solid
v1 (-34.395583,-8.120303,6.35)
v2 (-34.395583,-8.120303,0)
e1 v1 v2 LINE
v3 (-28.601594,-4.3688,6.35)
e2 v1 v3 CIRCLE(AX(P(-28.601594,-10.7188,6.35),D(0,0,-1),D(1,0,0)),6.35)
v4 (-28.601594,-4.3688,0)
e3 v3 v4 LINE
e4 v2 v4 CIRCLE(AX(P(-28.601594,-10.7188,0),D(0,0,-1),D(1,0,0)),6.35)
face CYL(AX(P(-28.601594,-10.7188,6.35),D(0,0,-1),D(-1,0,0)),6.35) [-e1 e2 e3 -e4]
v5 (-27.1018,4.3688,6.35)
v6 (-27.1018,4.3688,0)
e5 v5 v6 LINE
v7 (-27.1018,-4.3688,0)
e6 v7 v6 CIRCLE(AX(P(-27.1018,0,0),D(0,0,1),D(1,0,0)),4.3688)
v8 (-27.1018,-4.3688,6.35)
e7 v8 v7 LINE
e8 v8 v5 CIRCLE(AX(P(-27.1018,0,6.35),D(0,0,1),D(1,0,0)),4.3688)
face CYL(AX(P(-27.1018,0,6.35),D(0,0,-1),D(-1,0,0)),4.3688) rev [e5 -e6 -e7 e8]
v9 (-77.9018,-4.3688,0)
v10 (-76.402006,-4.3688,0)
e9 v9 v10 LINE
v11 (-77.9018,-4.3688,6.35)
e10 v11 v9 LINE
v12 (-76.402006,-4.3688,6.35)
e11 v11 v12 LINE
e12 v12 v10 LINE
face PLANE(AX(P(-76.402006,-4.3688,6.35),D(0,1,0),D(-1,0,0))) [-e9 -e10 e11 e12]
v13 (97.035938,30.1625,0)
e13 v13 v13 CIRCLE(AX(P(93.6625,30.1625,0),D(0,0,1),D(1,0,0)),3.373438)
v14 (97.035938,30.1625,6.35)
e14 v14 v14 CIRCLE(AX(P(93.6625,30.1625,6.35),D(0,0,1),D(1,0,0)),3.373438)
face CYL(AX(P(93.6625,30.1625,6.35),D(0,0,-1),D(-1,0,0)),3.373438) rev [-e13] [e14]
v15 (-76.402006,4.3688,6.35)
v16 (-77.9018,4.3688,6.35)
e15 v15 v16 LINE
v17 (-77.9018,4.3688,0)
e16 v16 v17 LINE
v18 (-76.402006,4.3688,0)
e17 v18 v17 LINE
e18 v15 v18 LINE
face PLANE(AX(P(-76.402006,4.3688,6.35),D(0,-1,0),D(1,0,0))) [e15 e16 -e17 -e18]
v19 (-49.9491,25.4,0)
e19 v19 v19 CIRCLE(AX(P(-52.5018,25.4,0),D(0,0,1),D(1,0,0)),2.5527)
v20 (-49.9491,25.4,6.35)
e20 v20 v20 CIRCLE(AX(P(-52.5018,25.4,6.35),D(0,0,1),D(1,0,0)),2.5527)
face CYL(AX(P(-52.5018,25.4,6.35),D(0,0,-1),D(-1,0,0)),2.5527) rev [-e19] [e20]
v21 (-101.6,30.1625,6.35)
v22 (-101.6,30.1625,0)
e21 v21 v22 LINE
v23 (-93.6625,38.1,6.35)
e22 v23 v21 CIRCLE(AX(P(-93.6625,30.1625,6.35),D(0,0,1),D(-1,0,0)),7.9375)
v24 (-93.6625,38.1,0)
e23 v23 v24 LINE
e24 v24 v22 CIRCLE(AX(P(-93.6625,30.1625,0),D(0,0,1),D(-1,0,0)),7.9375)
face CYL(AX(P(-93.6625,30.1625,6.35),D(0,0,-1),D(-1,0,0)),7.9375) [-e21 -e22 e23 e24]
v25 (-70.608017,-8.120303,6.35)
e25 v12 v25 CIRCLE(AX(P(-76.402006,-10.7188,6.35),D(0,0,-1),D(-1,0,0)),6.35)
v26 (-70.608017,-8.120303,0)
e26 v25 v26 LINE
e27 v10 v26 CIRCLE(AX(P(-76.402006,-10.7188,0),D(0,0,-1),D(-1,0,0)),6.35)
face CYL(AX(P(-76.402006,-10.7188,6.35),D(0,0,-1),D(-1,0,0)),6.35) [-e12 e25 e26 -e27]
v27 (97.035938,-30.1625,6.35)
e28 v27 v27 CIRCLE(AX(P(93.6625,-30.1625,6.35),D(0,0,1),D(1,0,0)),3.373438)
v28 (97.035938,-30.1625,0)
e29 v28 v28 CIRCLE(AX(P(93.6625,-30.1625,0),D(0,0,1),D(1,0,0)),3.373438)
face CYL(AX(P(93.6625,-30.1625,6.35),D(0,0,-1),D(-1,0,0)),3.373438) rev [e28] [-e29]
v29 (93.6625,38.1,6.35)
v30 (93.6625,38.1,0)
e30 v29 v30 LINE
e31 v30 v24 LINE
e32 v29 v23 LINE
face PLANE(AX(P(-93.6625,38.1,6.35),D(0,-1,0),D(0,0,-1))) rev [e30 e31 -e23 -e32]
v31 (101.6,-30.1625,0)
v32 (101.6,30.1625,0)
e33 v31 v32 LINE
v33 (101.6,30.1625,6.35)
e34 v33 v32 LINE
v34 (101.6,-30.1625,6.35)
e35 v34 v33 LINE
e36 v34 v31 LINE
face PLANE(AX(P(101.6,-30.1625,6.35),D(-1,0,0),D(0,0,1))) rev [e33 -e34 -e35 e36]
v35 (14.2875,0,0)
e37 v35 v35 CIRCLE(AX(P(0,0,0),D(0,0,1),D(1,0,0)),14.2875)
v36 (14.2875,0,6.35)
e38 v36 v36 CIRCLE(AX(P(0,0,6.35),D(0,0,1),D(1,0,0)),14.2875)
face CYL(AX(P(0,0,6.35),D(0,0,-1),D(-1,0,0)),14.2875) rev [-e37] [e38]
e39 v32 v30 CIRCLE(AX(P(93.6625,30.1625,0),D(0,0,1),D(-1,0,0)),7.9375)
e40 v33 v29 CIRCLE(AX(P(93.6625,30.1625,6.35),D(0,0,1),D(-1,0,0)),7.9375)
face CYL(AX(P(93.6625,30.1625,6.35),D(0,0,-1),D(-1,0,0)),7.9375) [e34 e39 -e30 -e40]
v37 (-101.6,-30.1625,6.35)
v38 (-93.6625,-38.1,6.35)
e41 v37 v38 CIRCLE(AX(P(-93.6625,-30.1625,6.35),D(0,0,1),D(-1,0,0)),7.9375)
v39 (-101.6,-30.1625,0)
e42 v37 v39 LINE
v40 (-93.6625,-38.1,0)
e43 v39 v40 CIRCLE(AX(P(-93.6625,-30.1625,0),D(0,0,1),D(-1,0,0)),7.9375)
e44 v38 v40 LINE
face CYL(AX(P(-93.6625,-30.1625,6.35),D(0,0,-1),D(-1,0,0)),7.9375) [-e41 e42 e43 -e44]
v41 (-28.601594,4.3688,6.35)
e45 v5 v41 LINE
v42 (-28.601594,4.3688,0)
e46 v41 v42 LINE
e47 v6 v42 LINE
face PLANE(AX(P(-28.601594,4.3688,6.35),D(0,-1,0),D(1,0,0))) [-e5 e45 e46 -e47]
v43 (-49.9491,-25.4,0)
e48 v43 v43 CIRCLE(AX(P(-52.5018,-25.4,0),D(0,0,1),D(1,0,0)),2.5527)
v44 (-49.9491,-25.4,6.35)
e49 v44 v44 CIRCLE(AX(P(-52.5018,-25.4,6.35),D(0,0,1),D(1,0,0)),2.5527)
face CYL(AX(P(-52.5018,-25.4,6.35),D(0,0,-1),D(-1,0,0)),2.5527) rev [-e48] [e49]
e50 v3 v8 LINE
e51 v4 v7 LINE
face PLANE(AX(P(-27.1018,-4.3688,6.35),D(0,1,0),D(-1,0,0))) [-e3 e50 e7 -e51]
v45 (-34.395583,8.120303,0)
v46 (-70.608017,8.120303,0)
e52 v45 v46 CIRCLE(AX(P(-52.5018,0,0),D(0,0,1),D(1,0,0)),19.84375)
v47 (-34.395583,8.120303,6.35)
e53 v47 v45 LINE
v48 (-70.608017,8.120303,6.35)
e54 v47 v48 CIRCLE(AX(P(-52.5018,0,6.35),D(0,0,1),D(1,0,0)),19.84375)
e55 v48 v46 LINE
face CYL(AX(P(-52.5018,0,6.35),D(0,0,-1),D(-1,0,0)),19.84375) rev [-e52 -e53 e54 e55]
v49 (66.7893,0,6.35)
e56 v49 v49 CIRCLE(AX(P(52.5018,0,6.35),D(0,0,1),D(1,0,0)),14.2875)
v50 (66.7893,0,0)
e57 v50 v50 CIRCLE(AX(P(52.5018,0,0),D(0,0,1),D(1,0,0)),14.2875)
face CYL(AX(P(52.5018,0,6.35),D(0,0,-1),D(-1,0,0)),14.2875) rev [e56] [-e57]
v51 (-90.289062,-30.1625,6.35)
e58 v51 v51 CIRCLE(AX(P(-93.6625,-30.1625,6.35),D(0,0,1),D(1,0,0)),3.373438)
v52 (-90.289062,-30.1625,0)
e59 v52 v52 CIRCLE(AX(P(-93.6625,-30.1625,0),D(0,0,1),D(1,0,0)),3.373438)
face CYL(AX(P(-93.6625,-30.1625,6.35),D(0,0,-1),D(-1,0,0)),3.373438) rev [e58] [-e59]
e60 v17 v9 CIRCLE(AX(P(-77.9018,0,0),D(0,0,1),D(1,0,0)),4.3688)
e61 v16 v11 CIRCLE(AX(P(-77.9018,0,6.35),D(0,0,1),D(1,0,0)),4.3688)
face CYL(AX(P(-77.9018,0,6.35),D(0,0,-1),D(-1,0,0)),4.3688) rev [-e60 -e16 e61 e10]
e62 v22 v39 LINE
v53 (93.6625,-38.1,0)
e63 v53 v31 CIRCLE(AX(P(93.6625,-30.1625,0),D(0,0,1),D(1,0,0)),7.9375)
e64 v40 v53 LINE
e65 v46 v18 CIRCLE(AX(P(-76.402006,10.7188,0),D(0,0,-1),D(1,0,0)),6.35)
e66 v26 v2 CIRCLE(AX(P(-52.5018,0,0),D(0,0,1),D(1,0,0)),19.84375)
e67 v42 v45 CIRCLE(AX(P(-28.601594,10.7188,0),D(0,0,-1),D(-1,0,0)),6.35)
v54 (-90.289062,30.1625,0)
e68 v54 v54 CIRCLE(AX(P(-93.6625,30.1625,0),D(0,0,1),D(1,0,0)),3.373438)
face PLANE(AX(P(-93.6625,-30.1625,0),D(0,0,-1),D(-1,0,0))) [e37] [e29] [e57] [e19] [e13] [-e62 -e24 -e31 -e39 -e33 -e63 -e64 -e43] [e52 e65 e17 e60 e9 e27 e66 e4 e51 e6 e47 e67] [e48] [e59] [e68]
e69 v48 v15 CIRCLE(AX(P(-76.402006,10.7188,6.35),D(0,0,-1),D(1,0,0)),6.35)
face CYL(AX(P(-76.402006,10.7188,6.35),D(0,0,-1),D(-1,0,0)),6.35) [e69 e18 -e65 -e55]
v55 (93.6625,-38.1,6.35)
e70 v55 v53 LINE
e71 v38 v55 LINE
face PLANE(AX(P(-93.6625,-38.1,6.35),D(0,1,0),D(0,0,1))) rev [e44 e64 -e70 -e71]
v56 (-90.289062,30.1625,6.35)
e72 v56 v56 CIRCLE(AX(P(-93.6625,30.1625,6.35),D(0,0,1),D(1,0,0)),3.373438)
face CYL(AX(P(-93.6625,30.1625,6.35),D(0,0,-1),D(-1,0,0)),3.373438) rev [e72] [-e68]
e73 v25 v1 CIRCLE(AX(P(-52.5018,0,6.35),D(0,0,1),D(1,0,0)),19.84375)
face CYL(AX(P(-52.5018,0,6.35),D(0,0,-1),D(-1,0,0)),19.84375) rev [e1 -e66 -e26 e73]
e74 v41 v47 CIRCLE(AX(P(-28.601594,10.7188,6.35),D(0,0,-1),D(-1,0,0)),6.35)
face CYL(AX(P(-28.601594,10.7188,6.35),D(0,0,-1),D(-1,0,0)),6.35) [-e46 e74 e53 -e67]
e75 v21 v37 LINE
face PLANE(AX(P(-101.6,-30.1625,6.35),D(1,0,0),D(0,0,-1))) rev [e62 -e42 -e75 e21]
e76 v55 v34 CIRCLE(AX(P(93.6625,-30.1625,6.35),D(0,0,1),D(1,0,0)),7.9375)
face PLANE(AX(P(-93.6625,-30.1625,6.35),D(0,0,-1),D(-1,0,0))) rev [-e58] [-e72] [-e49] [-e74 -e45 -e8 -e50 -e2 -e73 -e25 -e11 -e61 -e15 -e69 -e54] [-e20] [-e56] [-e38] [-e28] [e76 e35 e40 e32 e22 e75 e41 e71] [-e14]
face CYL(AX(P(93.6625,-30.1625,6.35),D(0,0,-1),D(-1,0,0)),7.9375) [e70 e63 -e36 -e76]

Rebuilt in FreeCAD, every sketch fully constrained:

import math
import FreeCAD as App
import Part
import Sketcher
Q = App.Units.Quantity

doc = App.newDocument("Part")
params = doc.addObject("Spreadsheet::Sheet", "Params")
for row, (alias, value) in enumerate([
    ("sketch1_radius", "0.25 in"),
    ("sketch1_diameter", "0.265625 in"),
    ("sketch1_diameter2", "0.201 in"),
    ("sketch1_diameter3", "1.125 in"),
    ("sketch1_radius2", "0.3125 in"),
    ("pad1_length", "0.25 in"),
], start=1):
    params.set(f"A{row}", alias)
    params.set(f"B{row}", "=" + value)
    params.setAlias(f"B{row}", alias)

body = doc.addObject("PartDesign::Body", "Body")

# Sketch on XY plane
sketch1 = body.newObject("Sketcher::SketchObject", "Sketch")
sketch1.AttachmentSupport = (doc.getObject("XY_Plane"), [""])
sketch1.MapMode = "FlatFace"
sketch1.addGeometry(Part.LineSegment(App.Vector(-93.6625, -38.1, 0), App.Vector(93.6625, -38.1, 0)), False)
sketch1.addGeometry(Part.ArcOfCircle(Part.Circle(App.Vector(93.6625, -30.1625, 0), App.Vector(0, 0, 1), 7.9375), math.radians(-90), math.radians(0)), False)
sketch1.addGeometry(Part.LineSegment(App.Vector(101.6, -30.1625, 0), App.Vector(101.6, 30.1625, 0)), False)
sketch1.addGeometry(Part.ArcOfCircle(Part.Circle(App.Vector(93.6625, 30.1625, 0), App.Vector(0, 0, 1), 7.9375), math.radians(0), math.radians(90)), False)
sketch1.addGeometry(Part.LineSegment(App.Vector(93.6625, 38.1, 0), App.Vector(-93.6625, 38.1, 0)), False)
sketch1.addGeometry(Part.ArcOfCircle(Part.Circle(App.Vector(-93.6625, 30.1625, 0), App.Vector(0, 0, 1), 7.9375), math.radians(90), math.radians(180)), False)
sketch1.addGeometry(Part.LineSegment(App.Vector(-101.6, 30.1625, 0), App.Vector(-101.6, -30.1625, 0)), False)
sketch1.addGeometry(Part.ArcOfCircle(Part.Circle(App.Vector(-93.6625, -30.1625, 0), App.Vector(0, 0, 1), 7.9375), math.radians(180), math.radians(270)), False)
sketch1.addGeometry(Part.Circle(App.Vector(-93.6625, -30.1625, 0), App.Vector(0, 0, 1), 3.373438), False)
sketch1.addGeometry(Part.Circle(App.Vector(-52.5018, -25.4, 0), App.Vector(0, 0, 1), 2.5527), False)
sketch1.addGeometry(Part.Circle(App.Vector(93.6625, -30.1625, 0), App.Vector(0, 0, 1), 3.373438), False)
sketch1.addGeometry(Part.ArcOfCircle(Part.Circle(App.Vector(-28.601594, 10.7188, 0), App.Vector(0, 0, 1), 6.35), math.radians(-155.844649), math.radians(-90)), False)
sketch1.addGeometry(Part.LineSegment(App.Vector(-28.601594, 4.3688, 0), App.Vector(-27.1018, 4.3688, 0)), False)
sketch1.addGeometry(Part.ArcOfCircle(Part.Circle(App.Vector(-27.1018, 0, 0), App.Vector(0, 0, 1), 4.3688), math.radians(-90), math.radians(90)), False)
sketch1.addGeometry(Part.LineSegment(App.Vector(-27.1018, -4.3688, 0), App.Vector(-28.601594, -4.3688, 0)), False)
sketch1.addGeometry(Part.ArcOfCircle(Part.Circle(App.Vector(-28.601594, -10.7188, 0), App.Vector(0, 0, 1), 6.35), math.radians(90), math.radians(155.844649)), False)
sketch1.addGeometry(Part.ArcOfCircle(Part.Circle(App.Vector(-52.5018, 0, 0), App.Vector(0, 0, 1), 19.84375), math.radians(-155.844649), math.radians(-24.155351)), False)
sketch1.addGeometry(Part.ArcOfCircle(Part.Circle(App.Vector(-76.402006, -10.7188, 0), App.Vector(0, 0, 1), 6.35), math.radians(24.155351), math.radians(90)), False)
sketch1.addGeometry(Part.LineSegment(App.Vector(-76.402006, -4.3688, 0), App.Vector(-77.9018, -4.3688, 0)), False)
sketch1.addGeometry(Part.ArcOfCircle(Part.Circle(App.Vector(-77.9018, 0, 0), App.Vector(0, 0, 1), 4.3688), math.radians(90), math.radians(270)), False)
sketch1.addGeometry(Part.LineSegment(App.Vector(-77.9018, 4.3688, 0), App.Vector(-76.402006, 4.3688, 0)), False)
sketch1.addGeometry(Part.ArcOfCircle(Part.Circle(App.Vector(-76.402006, 10.7188, 0), App.Vector(0, 0, 1), 6.35), math.radians(-90), math.radians(-24.155351)), False)
sketch1.addGeometry(Part.ArcOfCircle(Part.Circle(App.Vector(-52.5018, 0, 0), App.Vector(0, 0, 1), 19.84375), math.radians(24.155351), math.radians(155.844649)), False)
sketch1.addGeometry(Part.Circle(App.Vector(-93.6625, 30.1625, 0), App.Vector(0, 0, 1), 3.373438), False)
sketch1.addGeometry(Part.Circle(App.Vector(-52.5018, 25.4, 0), App.Vector(0, 0, 1), 2.5527), False)
sketch1.addGeometry(Part.Circle(App.Vector(0, 0, 0), App.Vector(0, 0, 1), 14.2875), False)
sketch1.addGeometry(Part.Circle(App.Vector(52.5018, 0, 0), App.Vector(0, 0, 1), 14.2875), False)
sketch1.addGeometry(Part.Circle(App.Vector(93.6625, 30.1625, 0), App.Vector(0, 0, 1), 3.373438), False)
sketch1.addConstraint(Sketcher.Constraint("Tangent", 0, 2, 1, 1))
sketch1.addConstraint(Sketcher.Constraint("Tangent", 1, 2, 2, 1))
sketch1.addConstraint(Sketcher.Constraint("Tangent", 2, 2, 3, 1))
sketch1.addConstraint(Sketcher.Constraint("Tangent", 3, 2, 4, 1))
sketch1.addConstraint(Sketcher.Constraint("Tangent", 4, 2, 5, 1))
sketch1.addConstraint(Sketcher.Constraint("Tangent", 5, 2, 6, 1))
sketch1.addConstraint(Sketcher.Constraint("Tangent", 6, 2, 7, 1))
sketch1.addConstraint(Sketcher.Constraint("Tangent", 7, 2, 0, 1))
sketch1.addConstraint(Sketcher.Constraint("Tangent", 11, 2, 12, 1))
sketch1.addConstraint(Sketcher.Constraint("Tangent", 12, 2, 13, 2))
sketch1.addConstraint(Sketcher.Constraint("Tangent", 13, 1, 14, 1))
sketch1.addConstraint(Sketcher.Constraint("Tangent", 14, 2, 15, 1))
sketch1.addConstraint(Sketcher.Constraint("Tangent", 15, 2, 16, 2))
sketch1.addConstraint(Sketcher.Constraint("Tangent", 16, 1, 17, 1))
sketch1.addConstraint(Sketcher.Constraint("Tangent", 17, 2, 18, 1))
sketch1.addConstraint(Sketcher.Constraint("Tangent", 18, 2, 19, 2))
sketch1.addConstraint(Sketcher.Constraint("Tangent", 19, 1, 20, 1))
sketch1.addConstraint(Sketcher.Constraint("Tangent", 20, 2, 21, 1))
sketch1.addConstraint(Sketcher.Constraint("Tangent", 21, 2, 22, 2))
sketch1.addConstraint(Sketcher.Constraint("Tangent", 22, 1, 11, 1))
sketch1.addConstraint(Sketcher.Constraint("Horizontal", 0))
sketch1.addConstraint(Sketcher.Constraint("Vertical", 2))
sketch1.addConstraint(Sketcher.Constraint("Horizontal", 4))
sketch1.addConstraint(Sketcher.Constraint("Vertical", 6))
sketch1.addConstraint(Sketcher.Constraint("Horizontal", 12))
sketch1.addConstraint(Sketcher.Constraint("Horizontal", 14))
sketch1.addConstraint(Sketcher.Constraint("Horizontal", 18))
sketch1.addConstraint(Sketcher.Constraint("Horizontal", 20))
sketch1.addConstraint(Sketcher.Constraint("Coincident", 25, 3, -1, 1))
sketch1.addConstraint(Sketcher.Constraint("Coincident", 8, 3, 7, 3))
sketch1.addConstraint(Sketcher.Constraint("Coincident", 10, 3, 1, 3))
sketch1.addConstraint(Sketcher.Constraint("Coincident", 22, 3, 16, 3))
sketch1.addConstraint(Sketcher.Constraint("Coincident", 23, 3, 5, 3))
sketch1.addConstraint(Sketcher.Constraint("Coincident", 27, 3, 3, 3))
sketch1.addConstraint(Sketcher.Constraint("Equal", 1, 3))
sketch1.addConstraint(Sketcher.Constraint("Equal", 3, 5))
sketch1.addConstraint(Sketcher.Constraint("Equal", 5, 7))
sketch1.addConstraint(Sketcher.Constraint("Equal", 8, 10))
sketch1.addConstraint(Sketcher.Constraint("Equal", 11, 15))
sketch1.addConstraint(Sketcher.Constraint("Equal", 15, 17))
sketch1.addConstraint(Sketcher.Constraint("Equal", 13, 19))
sketch1.addConstraint(Sketcher.Constraint("Equal", 17, 21))
sketch1.addConstraint(Sketcher.Constraint("Equal", 16, 22))
sketch1.addConstraint(Sketcher.Constraint("Equal", 10, 23))
sketch1.addConstraint(Sketcher.Constraint("Equal", 9, 24))
sketch1.addConstraint(Sketcher.Constraint("Equal", 25, 26))
sketch1.addConstraint(Sketcher.Constraint("Equal", 23, 27))
sketch1.addConstraint(Sketcher.Constraint("Symmetric", 1, 3, 5, 3, -1, 1))
sketch1.addConstraint(Sketcher.Constraint("Symmetric", 16, 3, 26, 3, -1, 1))
sketch1.addConstraint(Sketcher.Constraint("Symmetric", 11, 3, 15, 3, -1))
sketch1.addConstraint(Sketcher.Constraint("Symmetric", 9, 3, 24, 3, -1))
sketch1.addConstraint(Sketcher.Constraint("PointOnObject", 19, 3, -1))
sketch1.addConstraint(Sketcher.Constraint("Vertical", 9, 3, 16, 3))
sketch1.addConstraint(Sketcher.Constraint("Equal", 14, 18))
sketch1.addConstraint(Sketcher.Constraint("Radius", 11, Q("0.25 in")))
sketch1.addConstraint(Sketcher.Constraint("Diameter", 8, Q("0.265625 in")))
sketch1.addConstraint(Sketcher.Constraint("Diameter", 9, Q("0.201 in")))
sketch1.addConstraint(Sketcher.Constraint("Diameter", 25, Q("1.125 in")))
sketch1.addConstraint(Sketcher.Constraint("DistanceY", 9, 3, -1, 1, Q("1 in")))
sketch1.addConstraint(Sketcher.Constraint("DistanceX", -1, 1, 1, 2, Q("4 in")))
sketch1.addConstraint(Sketcher.Constraint("Radius", 1, Q("0.3125 in")))
sketch1.addConstraint(Sketcher.Constraint("Radius", 13, Q("0.172 in")))
sketch1.addConstraint(Sketcher.Constraint("Radius", 16, Q("0.78125 in")))
sketch1.addConstraint(Sketcher.Constraint("DistanceX", 9, 3, 13, 3, Q("1 in")))
sketch1.addConstraint(Sketcher.Constraint("DistanceY", 0, 2, -1, 1, Q("1.5 in")))
sketch1.addConstraint(Sketcher.Constraint("DistanceX", 9, 3, -1, 1, Q("2.067 in")))
sketch1.setExpression("Constraints[54]", "Params.sketch1_radius")
sketch1.setExpression("Constraints[55]", "Params.sketch1_diameter")
sketch1.setExpression("Constraints[56]", "Params.sketch1_diameter2")
sketch1.setExpression("Constraints[57]", "Params.sketch1_diameter3")
sketch1.setExpression("Constraints[60]", "Params.sketch1_radius2")
pad1 = body.newObject("PartDesign::Pad", "Pad")
pad1.Profile = sketch1
pad1.setExpression("Length", "Params.pad1_length")

doc.recompute()
